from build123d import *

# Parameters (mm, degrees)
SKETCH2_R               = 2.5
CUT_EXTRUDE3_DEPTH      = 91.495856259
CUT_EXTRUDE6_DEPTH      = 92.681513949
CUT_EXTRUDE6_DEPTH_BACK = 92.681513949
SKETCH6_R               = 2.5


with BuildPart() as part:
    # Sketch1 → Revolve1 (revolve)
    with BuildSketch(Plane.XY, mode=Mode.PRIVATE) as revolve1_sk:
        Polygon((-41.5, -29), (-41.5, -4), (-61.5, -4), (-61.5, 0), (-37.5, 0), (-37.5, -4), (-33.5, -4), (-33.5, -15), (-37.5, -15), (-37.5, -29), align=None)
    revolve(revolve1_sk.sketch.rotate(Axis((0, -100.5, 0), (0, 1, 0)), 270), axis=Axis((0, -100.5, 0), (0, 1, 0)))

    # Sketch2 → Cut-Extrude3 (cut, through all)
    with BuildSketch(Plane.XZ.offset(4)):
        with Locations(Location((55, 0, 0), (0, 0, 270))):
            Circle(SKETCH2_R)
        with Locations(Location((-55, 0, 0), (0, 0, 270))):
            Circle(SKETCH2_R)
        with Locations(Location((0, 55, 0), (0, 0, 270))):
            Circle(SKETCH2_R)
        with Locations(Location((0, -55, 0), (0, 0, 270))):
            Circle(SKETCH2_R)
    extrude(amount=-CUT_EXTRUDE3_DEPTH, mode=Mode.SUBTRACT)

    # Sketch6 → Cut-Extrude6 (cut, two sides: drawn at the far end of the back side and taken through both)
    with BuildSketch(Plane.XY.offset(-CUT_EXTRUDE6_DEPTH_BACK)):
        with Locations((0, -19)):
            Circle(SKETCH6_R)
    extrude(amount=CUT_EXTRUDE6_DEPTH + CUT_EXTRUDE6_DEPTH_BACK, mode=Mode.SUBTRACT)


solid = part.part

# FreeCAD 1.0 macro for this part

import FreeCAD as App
import Part
import Sketcher
from FreeCAD import Vector


def add_polygon(sketch, points):
    """Adds a closed chain of lines whose ends are joined by coincident constraints."""
    first, n = sketch.GeometryCount, len(points)
    for a, b in zip(points, points[1:] + points[:1]):
        sketch.addGeometry(Part.LineSegment(App.Vector(*a, 0), App.Vector(*b, 0)), False)
    for i in range(n):
        sketch.addConstraint(Sketcher.Constraint("Coincident", first + i, 2, first + (i + 1) % n, 1))

doc = App.newDocument("Part")
body = doc.addObject("PartDesign::Body", "Body")

# Sketch on XY plane
sketch1 = doc.addObject("Sketcher::SketchObject", "Sketch")
body.addObject(sketch1)
sketch1.AttachmentSupport = (doc.XY_Plane, [""])
sketch1.MapMode = "FlatFace"
add_polygon(sketch1, [(-41.5, -4), (-41.5, -29), (-37.5, -29), (-37.5, -15), (-33.5, -15), (-33.5, -4), (-37.5, -4), (-37.5, 0), (-61.5, 0), (-61.5, -4)])  # lines 0-9
sketch1.addConstraint(Sketcher.Constraint("Vertical", 0))
sketch1.addConstraint(Sketcher.Constraint("Horizontal", 1))
sketch1.addConstraint(Sketcher.Constraint("Vertical", 2))
sketch1.addConstraint(Sketcher.Constraint("Horizontal", 3))
sketch1.addConstraint(Sketcher.Constraint("Vertical", 4))
sketch1.addConstraint(Sketcher.Constraint("Horizontal", 5))
sketch1.addConstraint(Sketcher.Constraint("Vertical", 6))
sketch1.addConstraint(Sketcher.Constraint("Horizontal", 7))
sketch1.addConstraint(Sketcher.Constraint("Vertical", 8))
sketch1.addConstraint(Sketcher.Constraint("Horizontal", 9))
sketch1.addConstraint(Sketcher.Constraint("PointOnObject", 6, 2, -1))
sketch1.addConstraint(Sketcher.Constraint("Horizontal", 5, 2, 8, 2))
sketch1.addConstraint(Sketcher.Constraint("Vertical", 2, 2, 5, 2))
sketch1.addConstraint(Sketcher.Constraint("Equal", 1, 3))
sketch1.addConstraint(Sketcher.Constraint("Equal", 5, 6))
sketch1.addConstraint(Sketcher.Constraint("DistanceX", 1, 1, 1, 2, 4.0))
sketch1.addConstraint(Sketcher.Constraint("DistanceX", 7, 2, 7, 1, 24.0))
sketch1.addConstraint(Sketcher.Constraint("DistanceY", 0, 2, 0, 1, 25.0))
sketch1.addConstraint(Sketcher.Constraint("DistanceY", 2, 1, 2, 2, 14.0))
sketch1.addConstraint(Sketcher.Constraint("DistanceX", 0, 2, -1, 1, 41.5))
revolution = doc.addObject("PartDesign::Revolution", "Revolution")
body.addObject(revolution)
revolution.Profile = sketch1
revolution.ReferenceAxis = (sketch1, ["V_Axis"])
revolution.Angle = 360

# Sketch on XZ plane
sketch2 = doc.addObject("Sketcher::SketchObject", "Sketch001")
body.addObject(sketch2)
sketch2.AttachmentSupport = (doc.XZ_Plane, [""])
sketch2.MapMode = "FlatFace"
sketch2.AttachmentOffset = App.Placement(Vector(0, 0, 4), App.Rotation())
sketch2.addGeometry(Part.Circle(Vector(55, 0, 0), Vector(0, 0, 1), 2.5), False)
sketch2.addGeometry(Part.Circle(Vector(-55, 0, 0), Vector(0, 0, 1), 2.5), False)
sketch2.addGeometry(Part.Circle(Vector(0, 55, 0), Vector(0, 0, 1), 2.5), False)
sketch2.addGeometry(Part.Circle(Vector(0, -55, 0), Vector(0, 0, 1), 2.5), False)
sketch2.addConstraint(Sketcher.Constraint("Equal", 0, 1))
sketch2.addConstraint(Sketcher.Constraint("Equal", 1, 2))
sketch2.addConstraint(Sketcher.Constraint("Equal", 2, 3))
sketch2.addConstraint(Sketcher.Constraint("Symmetric", 0, 3, 1, 3, -1, 1))
sketch2.addConstraint(Sketcher.Constraint("Symmetric", 2, 3, 3, 3, -1, 1))
sketch2.addConstraint(Sketcher.Constraint("PointOnObject", 0, 3, -1))
sketch2.addConstraint(Sketcher.Constraint("PointOnObject", 2, 3, -2))
sketch2.addConstraint(Sketcher.Constraint("Diameter", 0, 5.0))
sketch2.addConstraint(Sketcher.Constraint("DistanceX", -1, 1, 0, 3, 55.0))
sketch2.addConstraint(Sketcher.Constraint("DistanceY", -1, 1, 2, 3, 55.0))
pocket1 = doc.addObject("PartDesign::Pocket", "Pocket")
body.addObject(pocket1)
pocket1.Profile = sketch2
pocket1.Type = "ThroughAll"

# Sketch on XY plane
sketch3 = doc.addObject("Sketcher::SketchObject", "Sketch002")
body.addObject(sketch3)
sketch3.AttachmentSupport = (doc.XY_Plane, [""])
sketch3.MapMode = "FlatFace"
sketch3.addGeometry(Part.Circle(Vector(0, -19, 0), Vector(0, 0, 1), 2.5), False)
sketch3.addConstraint(Sketcher.Constraint("PointOnObject", 0, 3, -2))
sketch3.addConstraint(Sketcher.Constraint("Diameter", 0, 5.0))
sketch3.addConstraint(Sketcher.Constraint("DistanceY", 0, 3, -1, 1, 19.0))
pocket2 = doc.addObject("PartDesign::Pocket", "Pocket001")
body.addObject(pocket2)
pocket2.Profile = sketch3
pocket2.Type = "ThroughAll"
pocket2.Midplane = True

doc.recompute()
